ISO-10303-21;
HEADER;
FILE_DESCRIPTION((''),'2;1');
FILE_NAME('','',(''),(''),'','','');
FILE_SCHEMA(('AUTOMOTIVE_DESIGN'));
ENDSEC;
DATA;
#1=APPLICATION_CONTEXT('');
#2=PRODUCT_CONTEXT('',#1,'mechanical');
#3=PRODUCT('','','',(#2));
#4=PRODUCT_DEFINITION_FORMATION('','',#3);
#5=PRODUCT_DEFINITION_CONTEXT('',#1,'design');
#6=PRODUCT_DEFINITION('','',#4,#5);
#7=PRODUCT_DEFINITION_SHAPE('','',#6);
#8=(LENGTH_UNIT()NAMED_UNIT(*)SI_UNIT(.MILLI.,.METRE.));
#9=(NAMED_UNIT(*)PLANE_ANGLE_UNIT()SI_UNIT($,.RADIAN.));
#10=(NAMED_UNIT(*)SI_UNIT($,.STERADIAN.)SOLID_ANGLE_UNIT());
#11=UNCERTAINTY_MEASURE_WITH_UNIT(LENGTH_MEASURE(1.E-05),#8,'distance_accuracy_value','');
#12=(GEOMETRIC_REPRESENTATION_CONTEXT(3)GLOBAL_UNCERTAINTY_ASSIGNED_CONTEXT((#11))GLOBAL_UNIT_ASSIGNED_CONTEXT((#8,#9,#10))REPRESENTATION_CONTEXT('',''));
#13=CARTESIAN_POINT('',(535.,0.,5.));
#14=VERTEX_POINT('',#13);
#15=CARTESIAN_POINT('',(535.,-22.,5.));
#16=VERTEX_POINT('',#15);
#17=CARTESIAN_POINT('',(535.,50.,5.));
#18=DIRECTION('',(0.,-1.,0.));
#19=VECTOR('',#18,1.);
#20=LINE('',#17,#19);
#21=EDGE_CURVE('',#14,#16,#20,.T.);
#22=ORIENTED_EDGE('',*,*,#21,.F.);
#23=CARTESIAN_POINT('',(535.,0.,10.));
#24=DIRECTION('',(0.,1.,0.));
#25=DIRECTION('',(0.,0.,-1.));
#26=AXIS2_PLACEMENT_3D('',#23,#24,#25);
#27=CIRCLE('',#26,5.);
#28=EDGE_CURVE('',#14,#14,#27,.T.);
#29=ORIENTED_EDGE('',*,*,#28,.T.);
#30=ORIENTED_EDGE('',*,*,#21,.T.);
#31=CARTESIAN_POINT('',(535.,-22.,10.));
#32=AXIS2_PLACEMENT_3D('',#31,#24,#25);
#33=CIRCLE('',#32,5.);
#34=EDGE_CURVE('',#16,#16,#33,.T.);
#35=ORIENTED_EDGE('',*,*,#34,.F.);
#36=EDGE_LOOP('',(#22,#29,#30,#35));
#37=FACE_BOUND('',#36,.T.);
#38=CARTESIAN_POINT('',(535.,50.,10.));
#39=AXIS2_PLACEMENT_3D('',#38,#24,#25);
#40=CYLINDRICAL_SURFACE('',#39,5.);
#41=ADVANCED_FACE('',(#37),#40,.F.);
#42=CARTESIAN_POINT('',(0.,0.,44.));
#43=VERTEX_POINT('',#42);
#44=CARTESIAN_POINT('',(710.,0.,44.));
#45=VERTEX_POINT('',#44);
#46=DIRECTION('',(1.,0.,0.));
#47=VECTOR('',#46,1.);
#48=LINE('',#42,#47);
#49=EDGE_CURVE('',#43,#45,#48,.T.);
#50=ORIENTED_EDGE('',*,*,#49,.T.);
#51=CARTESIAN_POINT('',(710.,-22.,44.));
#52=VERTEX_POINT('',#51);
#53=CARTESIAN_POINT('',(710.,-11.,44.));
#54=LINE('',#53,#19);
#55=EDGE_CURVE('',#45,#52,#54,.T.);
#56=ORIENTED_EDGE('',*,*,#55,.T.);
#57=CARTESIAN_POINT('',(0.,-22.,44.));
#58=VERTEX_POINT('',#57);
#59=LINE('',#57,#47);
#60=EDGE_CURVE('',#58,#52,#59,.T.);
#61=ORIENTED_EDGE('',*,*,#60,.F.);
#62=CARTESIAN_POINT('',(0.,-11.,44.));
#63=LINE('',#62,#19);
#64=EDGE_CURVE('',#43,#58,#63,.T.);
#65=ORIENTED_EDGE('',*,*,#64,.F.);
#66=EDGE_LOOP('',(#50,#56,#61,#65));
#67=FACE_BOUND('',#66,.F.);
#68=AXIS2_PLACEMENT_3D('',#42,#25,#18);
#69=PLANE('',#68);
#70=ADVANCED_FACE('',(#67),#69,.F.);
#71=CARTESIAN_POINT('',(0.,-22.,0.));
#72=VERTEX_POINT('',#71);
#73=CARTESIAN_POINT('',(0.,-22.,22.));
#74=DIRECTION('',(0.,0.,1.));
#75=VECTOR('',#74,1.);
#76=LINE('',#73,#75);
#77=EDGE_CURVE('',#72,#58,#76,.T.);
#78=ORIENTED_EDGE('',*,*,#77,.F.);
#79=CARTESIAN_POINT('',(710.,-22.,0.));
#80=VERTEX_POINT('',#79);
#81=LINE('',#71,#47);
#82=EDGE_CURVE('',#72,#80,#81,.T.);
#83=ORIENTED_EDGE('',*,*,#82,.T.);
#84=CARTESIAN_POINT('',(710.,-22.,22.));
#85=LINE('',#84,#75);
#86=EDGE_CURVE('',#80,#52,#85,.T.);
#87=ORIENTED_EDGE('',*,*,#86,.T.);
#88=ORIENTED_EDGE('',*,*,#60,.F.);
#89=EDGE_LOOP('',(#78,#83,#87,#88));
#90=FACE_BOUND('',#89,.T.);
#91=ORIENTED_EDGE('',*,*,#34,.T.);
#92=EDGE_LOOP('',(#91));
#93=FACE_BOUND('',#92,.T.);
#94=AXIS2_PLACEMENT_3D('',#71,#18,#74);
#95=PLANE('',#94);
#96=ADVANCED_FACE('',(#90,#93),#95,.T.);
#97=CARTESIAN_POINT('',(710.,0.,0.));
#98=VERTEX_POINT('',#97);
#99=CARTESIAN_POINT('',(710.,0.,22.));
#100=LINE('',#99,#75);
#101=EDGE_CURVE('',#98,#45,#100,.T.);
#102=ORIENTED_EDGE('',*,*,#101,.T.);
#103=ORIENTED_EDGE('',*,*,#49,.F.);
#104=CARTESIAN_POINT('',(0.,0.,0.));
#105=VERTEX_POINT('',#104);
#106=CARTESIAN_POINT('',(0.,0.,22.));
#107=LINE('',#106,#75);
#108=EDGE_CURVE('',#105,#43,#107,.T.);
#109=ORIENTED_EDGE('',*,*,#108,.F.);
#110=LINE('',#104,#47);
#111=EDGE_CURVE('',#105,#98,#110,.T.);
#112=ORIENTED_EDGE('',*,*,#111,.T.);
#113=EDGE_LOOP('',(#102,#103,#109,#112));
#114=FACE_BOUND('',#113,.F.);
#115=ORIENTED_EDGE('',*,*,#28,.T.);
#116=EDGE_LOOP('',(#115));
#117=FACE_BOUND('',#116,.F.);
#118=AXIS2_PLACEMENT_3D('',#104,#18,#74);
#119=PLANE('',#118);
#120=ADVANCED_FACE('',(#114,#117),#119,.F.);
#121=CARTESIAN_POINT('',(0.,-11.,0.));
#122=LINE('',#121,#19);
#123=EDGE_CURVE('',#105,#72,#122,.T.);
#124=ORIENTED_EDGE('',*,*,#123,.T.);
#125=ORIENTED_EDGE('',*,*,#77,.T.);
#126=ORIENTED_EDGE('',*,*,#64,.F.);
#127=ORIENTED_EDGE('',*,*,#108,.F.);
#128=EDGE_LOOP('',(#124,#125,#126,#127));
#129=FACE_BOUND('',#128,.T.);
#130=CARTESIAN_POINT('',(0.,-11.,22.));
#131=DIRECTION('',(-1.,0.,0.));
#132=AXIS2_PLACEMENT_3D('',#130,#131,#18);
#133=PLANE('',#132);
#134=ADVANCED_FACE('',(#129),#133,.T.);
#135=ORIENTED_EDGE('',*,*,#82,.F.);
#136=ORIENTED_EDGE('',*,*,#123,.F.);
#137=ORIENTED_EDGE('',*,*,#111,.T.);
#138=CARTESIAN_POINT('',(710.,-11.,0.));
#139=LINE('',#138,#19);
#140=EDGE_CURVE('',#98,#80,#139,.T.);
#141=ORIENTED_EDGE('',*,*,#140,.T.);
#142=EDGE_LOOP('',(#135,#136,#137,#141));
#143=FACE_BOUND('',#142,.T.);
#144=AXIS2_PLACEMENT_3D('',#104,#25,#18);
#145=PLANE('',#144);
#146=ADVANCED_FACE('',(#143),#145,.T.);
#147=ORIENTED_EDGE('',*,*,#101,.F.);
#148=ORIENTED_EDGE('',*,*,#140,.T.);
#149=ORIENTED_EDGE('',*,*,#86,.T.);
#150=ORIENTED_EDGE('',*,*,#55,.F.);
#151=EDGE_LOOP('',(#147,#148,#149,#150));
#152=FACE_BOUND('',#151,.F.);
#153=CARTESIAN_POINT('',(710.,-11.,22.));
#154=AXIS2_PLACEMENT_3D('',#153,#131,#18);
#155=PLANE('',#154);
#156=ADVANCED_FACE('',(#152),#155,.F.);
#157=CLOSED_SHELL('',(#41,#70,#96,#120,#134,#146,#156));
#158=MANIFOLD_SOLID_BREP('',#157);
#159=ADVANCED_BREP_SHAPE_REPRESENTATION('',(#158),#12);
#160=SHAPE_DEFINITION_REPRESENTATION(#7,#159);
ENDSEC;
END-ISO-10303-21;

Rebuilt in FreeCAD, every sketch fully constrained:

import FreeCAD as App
import Part
import Sketcher
Q = App.Units.Quantity


def add_polygon(sketch, points):
    """Adds a closed chain of lines whose ends are joined by coincident constraints."""
    first, n = sketch.GeometryCount, len(points)
    for a, b in zip(points, points[1:] + points[:1]):
        sketch.addGeometry(Part.LineSegment(App.Vector(*a, 0), App.Vector(*b, 0)), False)
    for i in range(n):
        sketch.addConstraint(Sketcher.Constraint("Coincident", first + i, 2, first + (i + 1) % n, 1))

doc = App.newDocument("Part")
body = doc.addObject("PartDesign::Body", "Body")

sketch1 = body.newObject("Sketcher::SketchObject", "Sketch")
sketch1.AttachmentSupport = (doc.getObject("XY_Plane"), [""])
sketch1.MapMode = "FlatFace"
sketch1.addGeometry(Part.Circle(App.Vector(0, 0, 0), App.Vector(0, 0, 1), 5), False)
sketch1.addConstraint([
    Sketcher.Constraint("Coincident", 0, 3, -1, 1),
    Sketcher.Constraint("Diameter", 0, Q("10 mm")),
])
pad1 = body.newObject("PartDesign::Pad", "Pad")
pad1.Profile = sketch1
pad1.Length = 100
body2 = doc.addObject("PartDesign::Body", "Body001")
doc.recompute()

body.Placement = App.Placement(App.Vector(0, 0, 0), App.Rotation(App.Vector(0, 1, 0), 90))
boolean = body2.newObject("PartDesign::Boolean", "Boolean")
boolean.Type = "Fuse"
boolean.addObjects([body])
body3 = doc.addObject("PartDesign::Body", "Body002")
doc.recompute()

body2.Placement = App.Placement(App.Vector(-50, 535, 10), App.Rotation(App.Vector(0, 0, 1), 0))
boolean2 = body3.newObject("PartDesign::Boolean", "Boolean001")
boolean2.Type = "Fuse"
boolean2.addObjects([body2])
body4 = doc.addObject("PartDesign::Body", "Body003")

sketch2 = body4.newObject("Sketcher::SketchObject", "Sketch001")
sketch2.AttachmentSupport = (doc.getObject("XZ_Plane003"), [""])
sketch2.MapMode = "FlatFace"
add_polygon(sketch2, [(0, 44), (0, 0), (22, 0), (22, 44)])
sketch2.addConstraint([
    Sketcher.Constraint("Vertical", 0),
    Sketcher.Constraint("Horizontal", 1),
    Sketcher.Constraint("Vertical", 2),
    Sketcher.Constraint("Horizontal", 3),
    Sketcher.Constraint("Coincident", 0, 2, -1, 1),
    Sketcher.Constraint("DistanceX", 1, 1, 1, 2, Q("22 mm")),
    Sketcher.Constraint("DistanceY", 0, 2, 0, 1, Q("44 mm")),
])
pad2 = body4.newObject("PartDesign::Pad", "Pad001")
pad2.Profile = sketch2
pad2.Length = 710
pad2.Reversed = True
doc.recompute()

boolean3 = body4.newObject("PartDesign::Boolean", "Boolean002")
boolean3.Type = "Cut"
boolean3.addObjects([body3])
body5 = doc.addObject("PartDesign::Body", "Body004")
doc.recompute()

body4.Placement = App.Placement(App.Vector(0, 0, 0), App.Rotation(App.Vector(0, 0, 1), 270))
boolean4 = body5.newObject("PartDesign::Boolean", "Boolean003")
boolean4.Type = "Fuse"
boolean4.addObjects([body4])

doc.recompute()
